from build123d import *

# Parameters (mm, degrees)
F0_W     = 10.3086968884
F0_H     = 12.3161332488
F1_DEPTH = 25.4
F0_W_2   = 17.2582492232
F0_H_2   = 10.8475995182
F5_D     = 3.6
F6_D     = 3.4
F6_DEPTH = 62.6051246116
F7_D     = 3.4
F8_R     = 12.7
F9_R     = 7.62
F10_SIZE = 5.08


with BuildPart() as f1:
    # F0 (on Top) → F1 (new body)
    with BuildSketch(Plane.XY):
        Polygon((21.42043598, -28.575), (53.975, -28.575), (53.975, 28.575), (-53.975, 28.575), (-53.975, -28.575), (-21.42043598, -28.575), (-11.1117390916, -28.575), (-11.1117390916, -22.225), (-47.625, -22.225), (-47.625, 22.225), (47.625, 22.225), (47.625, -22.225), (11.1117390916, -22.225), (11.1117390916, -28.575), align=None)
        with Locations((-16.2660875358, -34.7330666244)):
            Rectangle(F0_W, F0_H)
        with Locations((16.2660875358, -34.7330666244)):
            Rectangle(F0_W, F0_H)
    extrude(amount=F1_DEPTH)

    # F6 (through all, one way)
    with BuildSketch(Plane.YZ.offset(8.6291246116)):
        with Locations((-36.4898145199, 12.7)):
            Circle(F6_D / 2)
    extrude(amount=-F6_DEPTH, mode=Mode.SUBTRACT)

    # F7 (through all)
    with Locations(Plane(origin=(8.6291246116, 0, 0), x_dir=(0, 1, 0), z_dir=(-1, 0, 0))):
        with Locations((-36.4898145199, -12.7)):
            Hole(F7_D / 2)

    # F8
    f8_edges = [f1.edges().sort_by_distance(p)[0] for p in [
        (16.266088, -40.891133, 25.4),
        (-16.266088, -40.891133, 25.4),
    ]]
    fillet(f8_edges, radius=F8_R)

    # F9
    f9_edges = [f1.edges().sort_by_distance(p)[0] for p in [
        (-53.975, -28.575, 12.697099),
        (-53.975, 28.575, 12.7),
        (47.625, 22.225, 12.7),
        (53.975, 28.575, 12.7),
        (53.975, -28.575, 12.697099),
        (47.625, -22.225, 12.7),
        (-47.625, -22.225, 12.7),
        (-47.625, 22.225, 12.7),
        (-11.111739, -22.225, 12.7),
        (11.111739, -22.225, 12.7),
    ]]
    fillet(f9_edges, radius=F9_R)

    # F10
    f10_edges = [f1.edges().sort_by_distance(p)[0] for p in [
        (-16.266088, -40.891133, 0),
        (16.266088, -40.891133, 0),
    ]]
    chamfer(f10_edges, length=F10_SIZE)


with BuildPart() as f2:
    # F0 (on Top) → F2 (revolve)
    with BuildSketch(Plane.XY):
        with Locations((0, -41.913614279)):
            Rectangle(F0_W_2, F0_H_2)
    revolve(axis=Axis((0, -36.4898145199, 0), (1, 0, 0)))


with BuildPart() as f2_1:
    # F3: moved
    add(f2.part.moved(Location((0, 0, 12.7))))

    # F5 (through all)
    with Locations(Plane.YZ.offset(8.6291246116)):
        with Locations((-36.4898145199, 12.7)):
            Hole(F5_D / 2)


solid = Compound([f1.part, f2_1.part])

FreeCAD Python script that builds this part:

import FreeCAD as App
import Part
import Sketcher

V = App.Vector
Q = App.Units.Quantity


def edges_at(feature, points):
    """Names of the edges that pass closest to the given points."""
    edges = feature.Shape.Edges
    near = lambda p: min(range(len(edges)), key=lambda i: edges[i].distToShape(Part.Vertex(*p))[0])
    return sorted({f"Edge{near(p) + 1}" for p in points})

doc = App.newDocument("Part")
body = doc.addObject("PartDesign::Body", "Body")

# Sketch on XY plane
sketch1 = body.newObject("Sketcher::SketchObject", "Sketch")
sketch1.AttachmentSupport = (doc.getObject("XY_Plane"), [""])
sketch1.MapMode = "FlatFace"
sketch1.addGeometry([
    Part.LineSegment(V(53.975, -28.575, 0), V(53.975, 28.575, 0)),  # 0
    Part.LineSegment(V(53.975, 28.575, 0), V(-53.975, 28.575, 0)),  # 1
    Part.LineSegment(V(-53.975, 28.575, 0), V(-53.975, -28.575, 0)),  # 2
    Part.LineSegment(V(-53.975, -28.575, 0), V(-21.420436, -28.575, 0)),  # 3
    Part.LineSegment(V(-21.420436, -28.575, 0), V(-21.420436, -40.891133, 0)),  # 4
    Part.LineSegment(V(-21.420436, -40.891133, 0), V(-11.111739, -40.891133, 0)),  # 5
    Part.LineSegment(V(-11.111739, -40.891133, 0), V(-11.111739, -22.225, 0)),  # 6
    Part.LineSegment(V(-11.111739, -22.225, 0), V(-47.625, -22.225, 0)),  # 7
    Part.LineSegment(V(-47.625, -22.225, 0), V(-47.625, 22.225, 0)),  # 8
    Part.LineSegment(V(-47.625, 22.225, 0), V(47.625, 22.225, 0)),  # 9
    Part.LineSegment(V(47.625, 22.225, 0), V(47.625, -22.225, 0)),  # 10
    Part.LineSegment(V(47.625, -22.225, 0), V(11.111739, -22.225, 0)),  # 11
    Part.LineSegment(V(11.111739, -22.225, 0), V(11.111739, -40.891133, 0)),  # 12
    Part.LineSegment(V(11.111739, -40.891133, 0), V(21.420436, -40.891133, 0)),  # 13
    Part.LineSegment(V(21.420436, -40.891133, 0), V(21.420436, -28.575, 0)),  # 14
    Part.LineSegment(V(21.420436, -28.575, 0), V(53.975, -28.575, 0)),  # 15
], False)
sketch1.addConstraint([
    Sketcher.Constraint("Coincident", 0, 2, 1, 1),
    Sketcher.Constraint("Coincident", 1, 2, 2, 1),
    Sketcher.Constraint("Coincident", 2, 2, 3, 1),
    Sketcher.Constraint("Coincident", 3, 2, 4, 1),
    Sketcher.Constraint("Coincident", 4, 2, 5, 1),
    Sketcher.Constraint("Coincident", 5, 2, 6, 1),
    Sketcher.Constraint("Coincident", 6, 2, 7, 1),
    Sketcher.Constraint("Coincident", 7, 2, 8, 1),
    Sketcher.Constraint("Coincident", 8, 2, 9, 1),
    Sketcher.Constraint("Coincident", 9, 2, 10, 1),
    Sketcher.Constraint("Coincident", 10, 2, 11, 1),
    Sketcher.Constraint("Coincident", 11, 2, 12, 1),
    Sketcher.Constraint("Coincident", 12, 2, 13, 1),
    Sketcher.Constraint("Coincident", 13, 2, 14, 1),
    Sketcher.Constraint("Coincident", 14, 2, 15, 1),
    Sketcher.Constraint("Coincident", 15, 2, 0, 1),
    Sketcher.Constraint("Vertical", 0),
    Sketcher.Constraint("Horizontal", 1),
    Sketcher.Constraint("Vertical", 2),
    Sketcher.Constraint("Horizontal", 3),
    Sketcher.Constraint("Vertical", 4),
    Sketcher.Constraint("Horizontal", 5),
    Sketcher.Constraint("Vertical", 6),
    Sketcher.Constraint("Horizontal", 7),
    Sketcher.Constraint("Vertical", 8),
    Sketcher.Constraint("Horizontal", 9),
    Sketcher.Constraint("Vertical", 10),
    Sketcher.Constraint("Horizontal", 11),
    Sketcher.Constraint("Vertical", 12),
    Sketcher.Constraint("Horizontal", 13),
    Sketcher.Constraint("Vertical", 14),
    Sketcher.Constraint("Horizontal", 15),
    Sketcher.Constraint("Symmetric", 0, 2, 2, 2, -1, 1),
    Sketcher.Constraint("Symmetric", 7, 2, 9, 2, -1, 1),
    Sketcher.Constraint("Symmetric", 6, 2, 11, 2, -2),
    Sketcher.Constraint("Symmetric", 4, 2, 13, 2, -2),
    Sketcher.Constraint("Horizontal", 3, 2, 14, 2),
    Sketcher.Constraint("DistanceY", 6, 2, 1, 2, Q("2 in")),
    Sketcher.Constraint("DistanceX", 1, 2, 1, 1, Q("4.25 in")),
    Sketcher.Constraint("DistanceX", 9, 1, 9, 2, Q("3.75 in")),
    Sketcher.Constraint("DistanceY", 0, 1, 0, 2, Q("2.25 in")),
    Sketcher.Constraint("DistanceX", 7, 2, 7, 1, Q("36.513261 mm")),
    Sketcher.Constraint("DistanceX", 3, 1, 3, 2, Q("32.554564 mm")),
    Sketcher.Constraint("DistanceY", 4, 2, 4, 1, Q("12.316133 mm")),
])
pad1 = body.newObject("PartDesign::Pad", "Pad")
pad1.Profile = sketch1
pad1.Length = Q("1 in")

# Sketch on YZ plane
sketch2 = body.newObject("Sketcher::SketchObject", "Sketch001")
sketch2.AttachmentSupport = (doc.getObject("YZ_Plane"), [""])
sketch2.MapMode = "FlatFace"
sketch2.AttachmentOffset = App.Placement(V(0, 0, 8.629125), App.Rotation())
sketch2.addGeometry(Part.Circle(V(-36.489815, 12.7, 0), V(0, 0, 1), 1.7), False)
sketch2.addConstraint([
    Sketcher.Constraint("DistanceY", -1, 1, 0, 3, Q("0.5 in")),
    Sketcher.Constraint("Diameter", 0, Q("3.4 mm")),
    Sketcher.Constraint("DistanceX", 0, 3, -1, 1, Q("36.489815 mm")),
])
pocket1 = body.newObject("PartDesign::Pocket", "Pocket")
pocket1.Profile = sketch2
pocket1.Type = "ThroughAll"

# Sketch on YZ plane
sketch3 = body.newObject("Sketcher::SketchObject", "Sketch002")
sketch3.AttachmentSupport = (doc.getObject("YZ_Plane"), [""])
sketch3.MapMode = "FlatFace"
sketch3.AttachmentOffset = App.Placement(V(0, 0, 8.629125), App.Rotation())
sketch3.addGeometry(Part.Circle(V(-36.489815, 12.7, 0), V(0, 0, 1), 1.7), False)
sketch3.addConstraint([
    Sketcher.Constraint("DistanceY", -1, 1, 0, 3, Q("0.5 in")),
    Sketcher.Constraint("Diameter", 0, Q("3.4 mm")),
    Sketcher.Constraint("DistanceX", 0, 3, -1, 1, Q("36.489815 mm")),
])
doc.recompute()
hole = body.newObject("PartDesign::Hole", "Hole")
hole.Profile = sketch3
hole.ThreadType = "None"
hole.Diameter = 3.4
hole.DepthType = "ThroughAll"
hole.Reversed = True
doc.recompute()

fillet = body.newObject("PartDesign::Fillet", "Fillet")
fillet.Base = (hole, edges_at(hole, [(16.266, -40.891, 25.4), (-16.266, -40.891, 25.4)]))
fillet.Radius = Q("0.5 in")
doc.recompute()

fillet2 = body.newObject("PartDesign::Fillet", "Fillet001")
fillet2.Base = (fillet, edges_at(fillet, [
    (-53.975, -28.575, 12.697),
    (-53.975, 28.575, 12.7),
    (47.625, 22.225, 12.7),
    (53.975, 28.575, 12.7),
    (53.975, -28.575, 12.697),
    (47.625, -22.225, 12.7),
    (-47.625, -22.225, 12.7),
    (-47.625, 22.225, 12.7),
    (-11.112, -22.225, 12.7),
    (11.112, -22.225, 12.7),
]))
fillet2.Radius = Q("0.3 in")
doc.recompute()

chamfer = body.newObject("PartDesign::Chamfer", "Chamfer")
chamfer.Base = (fillet2, edges_at(fillet2, [(-16.266, -40.891, 0), (16.266, -40.891, 0)]))
chamfer.Size = Q("0.2 in")
body2 = doc.addObject("PartDesign::Body", "Body001")

# Sketch on XY plane
sketch4 = body2.newObject("Sketcher::SketchObject", "Sketch003")
sketch4.AttachmentSupport = (doc.getObject("XY_Plane001"), [""])
sketch4.MapMode = "FlatFace"
sketch4.addGeometry([
    Part.LineSegment(V(-8.629125, -36.489815, 0), V(-8.629125, -47.337414, 0)),
    Part.LineSegment(V(-8.629125, -47.337414, 0), V(8.629125, -47.337414, 0)),
    Part.LineSegment(V(8.629125, -47.337414, 0), V(8.629125, -36.489815, 0)),
    Part.LineSegment(V(8.629125, -36.489815, 0), V(-8.629125, -36.489815, 0)),
], False)
sketch4.addGeometry(Part.LineSegment(V(-8.629125, -36.489815, 0), V(8.629125, -36.489815, 0)), True)  # axis
sketch4.addConstraint([
    Sketcher.Constraint("Coincident", 0, 2, 1, 1),
    Sketcher.Constraint("Coincident", 1, 2, 2, 1),
    Sketcher.Constraint("Coincident", 2, 2, 3, 1),
    Sketcher.Constraint("Coincident", 3, 2, 0, 1),
    Sketcher.Constraint("Vertical", 0),
    Sketcher.Constraint("Horizontal", 1),
    Sketcher.Constraint("Vertical", 2),
    Sketcher.Constraint("Horizontal", 3),
    Sketcher.Constraint("Horizontal", 4),
    Sketcher.Constraint("Coincident", 4, 1, 3, 2),
    Sketcher.Constraint("Vertical", 1, 2, 4, 2),
    Sketcher.Constraint("DistanceY", 0, 2, 0, 1, Q("10.8476 mm")),
    Sketcher.Constraint("DistanceX", 1, 1, 1, 2, Q("17.258249 mm")),
    Sketcher.Constraint("DistanceX", 0, 2, -1, 1, Q("8.629125 mm")),
    Sketcher.Constraint("DistanceY", 0, 2, -1, 1, Q("47.337414 mm")),
])
revolution = body2.newObject("PartDesign::Revolution", "Revolution")
revolution.Profile = sketch4
revolution.ReferenceAxis = (sketch4, ["Axis0"])
revolution.Angle = 360
body3 = doc.addObject("PartDesign::Body", "Body002")
doc.recompute()

body2.Placement = App.Placement(V(0, 0, 12.7), App.Rotation(V(0, 0, 1), 0))
boolean = body3.newObject("PartDesign::Boolean", "Boolean")
boolean.Type = "Fuse"
boolean.addObjects([body2])

# Sketch on YZ plane
sketch5 = body3.newObject("Sketcher::SketchObject", "Sketch004")
sketch5.AttachmentSupport = (doc.getObject("YZ_Plane002"), [""])
sketch5.MapMode = "FlatFace"
sketch5.AttachmentOffset = App.Placement(V(0, 0, 8.629125), App.Rotation())
sketch5.addGeometry(Part.Circle(V(-36.489815, 12.7, 0), V(0, 0, 1), 1.8), False)
sketch5.addConstraint([
    Sketcher.Constraint("DistanceY", -1, 1, 0, 3, Q("0.5 in")),
    Sketcher.Constraint("Diameter", 0, Q("3.6 mm")),
    Sketcher.Constraint("DistanceX", 0, 3, -1, 1, Q("36.489815 mm")),
])
doc.recompute()
hole2 = body3.newObject("PartDesign::Hole", "Hole001")
hole2.Profile = sketch5
hole2.ThreadType = "None"
hole2.Diameter = 3.6
hole2.DepthType = "ThroughAll"

doc.recompute()
